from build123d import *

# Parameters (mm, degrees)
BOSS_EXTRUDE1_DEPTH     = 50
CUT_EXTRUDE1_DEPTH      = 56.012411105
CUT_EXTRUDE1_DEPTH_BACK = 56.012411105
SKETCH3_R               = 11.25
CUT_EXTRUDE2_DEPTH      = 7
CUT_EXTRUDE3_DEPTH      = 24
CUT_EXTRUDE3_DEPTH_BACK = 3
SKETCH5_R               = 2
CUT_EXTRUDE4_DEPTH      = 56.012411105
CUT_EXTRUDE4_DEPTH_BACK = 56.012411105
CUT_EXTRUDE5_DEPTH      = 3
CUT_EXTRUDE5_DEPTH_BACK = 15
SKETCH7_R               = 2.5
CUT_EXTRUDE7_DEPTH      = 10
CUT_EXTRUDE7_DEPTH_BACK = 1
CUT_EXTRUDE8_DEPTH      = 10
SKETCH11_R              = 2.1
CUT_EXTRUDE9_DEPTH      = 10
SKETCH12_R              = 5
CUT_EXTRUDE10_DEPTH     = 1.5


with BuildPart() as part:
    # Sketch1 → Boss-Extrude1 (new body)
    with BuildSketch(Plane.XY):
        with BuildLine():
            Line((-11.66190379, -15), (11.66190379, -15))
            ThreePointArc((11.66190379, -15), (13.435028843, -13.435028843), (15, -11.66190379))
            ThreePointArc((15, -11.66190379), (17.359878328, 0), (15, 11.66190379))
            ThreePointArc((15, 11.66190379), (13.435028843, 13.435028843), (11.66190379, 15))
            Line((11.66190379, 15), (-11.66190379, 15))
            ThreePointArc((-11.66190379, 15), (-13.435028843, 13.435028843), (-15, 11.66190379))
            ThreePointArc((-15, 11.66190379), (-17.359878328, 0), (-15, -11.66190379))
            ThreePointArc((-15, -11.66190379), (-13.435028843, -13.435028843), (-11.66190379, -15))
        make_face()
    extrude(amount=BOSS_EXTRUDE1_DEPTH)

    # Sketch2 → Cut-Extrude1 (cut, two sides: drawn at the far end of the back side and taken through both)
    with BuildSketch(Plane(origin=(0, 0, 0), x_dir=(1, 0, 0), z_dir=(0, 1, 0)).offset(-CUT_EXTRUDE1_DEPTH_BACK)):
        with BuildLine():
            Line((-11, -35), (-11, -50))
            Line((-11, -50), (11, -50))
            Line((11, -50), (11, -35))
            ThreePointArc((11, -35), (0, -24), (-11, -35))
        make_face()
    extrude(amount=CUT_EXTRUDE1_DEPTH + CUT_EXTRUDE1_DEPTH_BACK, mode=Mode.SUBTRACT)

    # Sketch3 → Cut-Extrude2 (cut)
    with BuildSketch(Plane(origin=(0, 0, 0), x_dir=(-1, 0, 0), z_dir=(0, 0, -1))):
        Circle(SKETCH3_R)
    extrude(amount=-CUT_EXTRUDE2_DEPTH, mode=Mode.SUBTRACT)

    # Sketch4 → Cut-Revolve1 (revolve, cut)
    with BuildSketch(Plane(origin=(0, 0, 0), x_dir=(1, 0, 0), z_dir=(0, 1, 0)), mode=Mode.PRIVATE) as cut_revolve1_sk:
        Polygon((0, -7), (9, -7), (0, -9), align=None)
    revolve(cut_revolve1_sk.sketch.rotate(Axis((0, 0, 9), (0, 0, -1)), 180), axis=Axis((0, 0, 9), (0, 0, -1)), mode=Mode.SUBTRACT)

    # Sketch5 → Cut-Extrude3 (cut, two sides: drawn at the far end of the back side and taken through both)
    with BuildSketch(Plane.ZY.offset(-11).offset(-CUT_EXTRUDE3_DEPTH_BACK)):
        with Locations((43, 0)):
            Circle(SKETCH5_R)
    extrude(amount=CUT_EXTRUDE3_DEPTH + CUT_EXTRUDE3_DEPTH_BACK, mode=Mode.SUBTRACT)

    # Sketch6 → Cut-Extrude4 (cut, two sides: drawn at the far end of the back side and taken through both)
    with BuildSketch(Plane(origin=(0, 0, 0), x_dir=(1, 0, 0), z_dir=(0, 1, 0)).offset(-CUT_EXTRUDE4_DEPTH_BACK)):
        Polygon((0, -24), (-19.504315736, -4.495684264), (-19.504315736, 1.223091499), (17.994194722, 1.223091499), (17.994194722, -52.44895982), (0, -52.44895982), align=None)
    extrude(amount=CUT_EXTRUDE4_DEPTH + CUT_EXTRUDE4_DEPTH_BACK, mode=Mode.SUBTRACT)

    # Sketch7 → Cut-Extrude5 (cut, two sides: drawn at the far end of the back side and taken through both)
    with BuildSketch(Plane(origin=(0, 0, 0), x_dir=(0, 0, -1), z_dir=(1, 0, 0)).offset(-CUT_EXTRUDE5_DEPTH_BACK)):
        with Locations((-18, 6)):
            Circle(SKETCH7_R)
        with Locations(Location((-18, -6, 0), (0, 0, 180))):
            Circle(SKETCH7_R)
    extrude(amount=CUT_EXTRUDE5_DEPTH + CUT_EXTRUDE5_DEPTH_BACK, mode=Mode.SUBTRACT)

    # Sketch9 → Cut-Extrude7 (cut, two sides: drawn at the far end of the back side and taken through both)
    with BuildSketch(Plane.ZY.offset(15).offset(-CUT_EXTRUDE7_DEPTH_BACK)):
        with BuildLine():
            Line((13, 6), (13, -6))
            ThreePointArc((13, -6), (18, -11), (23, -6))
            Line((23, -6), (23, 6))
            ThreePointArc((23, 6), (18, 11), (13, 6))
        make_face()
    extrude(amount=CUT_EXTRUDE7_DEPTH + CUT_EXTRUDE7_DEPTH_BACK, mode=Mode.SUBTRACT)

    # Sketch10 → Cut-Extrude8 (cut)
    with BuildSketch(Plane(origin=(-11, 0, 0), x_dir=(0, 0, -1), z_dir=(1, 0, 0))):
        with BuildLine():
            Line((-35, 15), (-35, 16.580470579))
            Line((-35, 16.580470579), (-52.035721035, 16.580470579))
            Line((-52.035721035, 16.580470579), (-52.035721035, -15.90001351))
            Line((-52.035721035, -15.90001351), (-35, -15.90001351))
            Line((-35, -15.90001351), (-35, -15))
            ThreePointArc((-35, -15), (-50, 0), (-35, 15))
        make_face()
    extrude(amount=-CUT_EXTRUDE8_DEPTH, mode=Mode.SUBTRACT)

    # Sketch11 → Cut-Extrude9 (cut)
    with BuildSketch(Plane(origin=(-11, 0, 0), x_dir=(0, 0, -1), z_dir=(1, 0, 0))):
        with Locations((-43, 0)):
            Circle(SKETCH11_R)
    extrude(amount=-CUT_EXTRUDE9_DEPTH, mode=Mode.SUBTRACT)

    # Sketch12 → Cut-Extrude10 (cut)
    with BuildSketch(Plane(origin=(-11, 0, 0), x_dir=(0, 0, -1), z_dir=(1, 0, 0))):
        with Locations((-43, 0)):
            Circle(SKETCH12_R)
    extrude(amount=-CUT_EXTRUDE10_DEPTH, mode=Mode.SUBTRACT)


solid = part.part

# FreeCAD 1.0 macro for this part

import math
import FreeCAD as App
import Part
import Sketcher
from FreeCAD import Vector
Q = App.Units.Quantity

doc = App.newDocument("Part")
body = doc.addObject("PartDesign::Body", "Body")

# Sketch on XY plane
sketch1 = doc.addObject("Sketcher::SketchObject", "Sketch")
body.addObject(sketch1)
sketch1.AttachmentSupport = (doc.XY_Plane, [""])
sketch1.MapMode = "FlatFace"
sketch1.addGeometry([
    Part.LineSegment(Vector(-11.7, -15, 0), Vector(11.7, -15, 0)),  # 0
    Part.ArcOfCircle(Part.Circle(Vector(0, 0, 0), Vector(0, 0, 1), 19), math.radians(-52.14), math.radians(-37.86)),  # 1
    Part.ArcOfCircle(Part.Circle(Vector(-12.6, 0, 0), Vector(0, 0, 1), 30), math.radians(-23), math.radians(23)),  # 2
    Part.ArcOfCircle(Part.Circle(Vector(0, 0, 0), Vector(0, 0, 1), 19), math.radians(37.86), math.radians(52.14)),  # 3
    Part.LineSegment(Vector(11.7, 15, 0), Vector(-11.7, 15, 0)),  # 4
    Part.ArcOfCircle(Part.Circle(Vector(0, 0, 0), Vector(0, 0, 1), 19), math.radians(127.86), math.radians(142.14)),  # 5
    Part.ArcOfCircle(Part.Circle(Vector(12.6, 0, 0), Vector(0, 0, 1), 30), math.radians(157), math.radians(203)),  # 6
    Part.ArcOfCircle(Part.Circle(Vector(0, 0, 0), Vector(0, 0, 1), 19), math.radians(-142.14), math.radians(-127.86)),  # 7
], False)
sketch1.addConstraint([
    Sketcher.Constraint("Coincident", 0, 2, 1, 1),
    Sketcher.Constraint("Coincident", 1, 2, 2, 1),
    Sketcher.Constraint("Coincident", 2, 2, 3, 1),
    Sketcher.Constraint("Coincident", 3, 2, 4, 1),
    Sketcher.Constraint("Coincident", 4, 2, 5, 1),
    Sketcher.Constraint("Coincident", 5, 2, 6, 1),
    Sketcher.Constraint("Coincident", 6, 2, 7, 1),
    Sketcher.Constraint("Coincident", 7, 2, 0, 1),
    Sketcher.Constraint("Horizontal", 0),
    Sketcher.Constraint("Horizontal", 4),
    Sketcher.Constraint("Coincident", 1, 3, -1, 1),
    Sketcher.Constraint("Coincident", 3, 3, -1, 1),
    Sketcher.Constraint("Coincident", 5, 3, -1, 1),
    Sketcher.Constraint("Coincident", 7, 3, -1, 1),
    Sketcher.Constraint("Equal", 1, 3),
    Sketcher.Constraint("Equal", 3, 5),
    Sketcher.Constraint("Equal", 2, 6),
    Sketcher.Constraint("Equal", 5, 7),
    Sketcher.Constraint("Symmetric", 2, 3, 6, 3, -1, 1),
    Sketcher.Constraint("PointOnObject", 2, 3, -1),
    Sketcher.Constraint("Vertical", 0, 2, 3, 2),
    Sketcher.Constraint("Radius", 1, 19.0),
    Sketcher.Constraint("DistanceY", 0, 2, -1, 1, 15.0),
    Sketcher.Constraint("DistanceX", -1, 1, 1, 2, 15.0),
    Sketcher.Constraint("Radius", 2, 29.994984),
])
pad1 = doc.addObject("PartDesign::Pad", "Pad")
body.addObject(pad1)
pad1.Profile = sketch1
pad1.Length = 50

# Sketch on XZ plane
sketch2 = doc.addObject("Sketcher::SketchObject", "Sketch001")
body.addObject(sketch2)
sketch2.AttachmentSupport = (doc.XZ_Plane, [""])
sketch2.MapMode = "FlatFace"
sketch2.addGeometry([
    Part.LineSegment(Vector(-11, 35, 0), Vector(-11, 50, 0)),
    Part.LineSegment(Vector(-11, 50, 0), Vector(11, 50, 0)),
    Part.LineSegment(Vector(11, 50, 0), Vector(11, 35, 0)),
    Part.ArcOfCircle(Part.Circle(Vector(0, 35, 0), Vector(0, 0, 1), 11), math.radians(180), math.radians(360)),
], False)
sketch2.addConstraint([
    Sketcher.Constraint("Coincident", 0, 2, 1, 1),
    Sketcher.Constraint("Coincident", 1, 2, 2, 1),
    Sketcher.Constraint("Tangent", 2, 2, 3, 2),
    Sketcher.Constraint("Tangent", 3, 1, 0, 1),
    Sketcher.Constraint("Vertical", 0),
    Sketcher.Constraint("Horizontal", 1),
    Sketcher.Constraint("Vertical", 2),
    Sketcher.Constraint("PointOnObject", 3, 3, -2),
    Sketcher.Constraint("Radius", 3, 11.0),
    Sketcher.Constraint("DistanceY", 0, 1, 0, 2, 15.0),
    Sketcher.Constraint("DistanceY", -1, 1, 3, 3, 35.0),
])
pocket1 = doc.addObject("PartDesign::Pocket", "Pocket")
body.addObject(pocket1)
pocket1.Profile = sketch2
pocket1.Type = "ThroughAll"
pocket1.Midplane = True

# Sketch on XY plane
sketch3 = doc.addObject("Sketcher::SketchObject", "Sketch002")
body.addObject(sketch3)
sketch3.AttachmentSupport = (doc.XY_Plane, [""])
sketch3.MapMode = "FlatFace"
sketch3.addGeometry(Part.Circle(Vector(0, 0, 0), Vector(0, 0, 1), 11), False)
sketch3.addConstraint([
    Sketcher.Constraint("Coincident", 0, 3, -1, 1),
    Sketcher.Constraint("Diameter", 0, 22.5),
])
pocket2 = doc.addObject("PartDesign::Pocket", "Pocket001")
body.addObject(pocket2)
pocket2.Profile = sketch3
pocket2.Length = 7
pocket2.Reversed = True

# Sketch on XZ plane
sketch4 = doc.addObject("Sketcher::SketchObject", "Sketch003")
body.addObject(sketch4)
sketch4.AttachmentSupport = (doc.XZ_Plane, [""])
sketch4.MapMode = "FlatFace"
sketch4.addGeometry([
    Part.LineSegment(Vector(9, 7, 0), Vector(0, 7, 0)),
    Part.LineSegment(Vector(0, 7, 0), Vector(0, 9, 0)),
    Part.LineSegment(Vector(0, 9, 0), Vector(9, 7, 0)),
], False)
sketch4.addConstraint([
    Sketcher.Constraint("Coincident", 0, 2, 1, 1),
    Sketcher.Constraint("Coincident", 1, 2, 2, 1),
    Sketcher.Constraint("Coincident", 2, 2, 0, 1),
    Sketcher.Constraint("Horizontal", 0),
    Sketcher.Constraint("Vertical", 1),
    Sketcher.Constraint("PointOnObject", 0, 2, -2),
    Sketcher.Constraint("DistanceX", 0, 2, 0, 1, 9.0),
    Sketcher.Constraint("DistanceY", 1, 1, 1, 2, 2.0),
    Sketcher.Constraint("DistanceY", -1, 1, 0, 2, 7.0),
])
groove = doc.addObject("PartDesign::Groove", "Groove")
body.addObject(groove)
groove.Profile = sketch4
groove.ReferenceAxis = (sketch4, ["V_Axis"])
groove.Angle = 360

# Sketch on YZ plane
sketch5 = doc.addObject("Sketcher::SketchObject", "Sketch004")
body.addObject(sketch5)
sketch5.AttachmentSupport = (doc.YZ_Plane, [""])
sketch5.MapMode = "FlatFace"
sketch5.AttachmentOffset = App.Placement(Vector(0, 0, 11), App.Rotation())
sketch5.addGeometry(Part.Circle(Vector(0, 43, 0), Vector(0, 0, 1), 2), False)
sketch5.addConstraint([
    Sketcher.Constraint("PointOnObject", 0, 3, -2),
    Sketcher.Constraint("Diameter", 0, 4.0),
    Sketcher.Constraint("DistanceY", -1, 1, 0, 3, 43.0),
])
pocket3 = doc.addObject("PartDesign::Pocket", "Pocket002")
body.addObject(pocket3)
pocket3.Profile = sketch5
pocket3.Type = "TwoLengths"
pocket3.Length = 24
pocket3.Length2 = 3

# Sketch on XZ plane
sketch6 = doc.addObject("Sketcher::SketchObject", "Sketch005")
body.addObject(sketch6)
sketch6.AttachmentSupport = (doc.XZ_Plane, [""])
sketch6.MapMode = "FlatFace"
sketch6.addGeometry([
    Part.LineSegment(Vector(-20, 4, 0), Vector(0, 24, 0)),  # 0
    Part.LineSegment(Vector(0, 24, 0), Vector(0, 52, 0)),  # 1
    Part.LineSegment(Vector(0, 52, 0), Vector(18, 52, 0)),  # 2
    Part.LineSegment(Vector(18, 52, 0), Vector(18, -1, 0)),  # 3
    Part.LineSegment(Vector(18, -1, 0), Vector(-20, -1, 0)),  # 4
    Part.LineSegment(Vector(-20, -1, 0), Vector(-20, 4, 0)),  # 5
], False)
sketch6.addConstraint([
    Sketcher.Constraint("Coincident", 0, 2, 1, 1),
    Sketcher.Constraint("Coincident", 1, 2, 2, 1),
    Sketcher.Constraint("Coincident", 2, 2, 3, 1),
    Sketcher.Constraint("Coincident", 3, 2, 4, 1),
    Sketcher.Constraint("Coincident", 4, 2, 5, 1),
    Sketcher.Constraint("Coincident", 5, 2, 0, 1),
    Sketcher.Constraint("Vertical", 1),
    Sketcher.Constraint("Horizontal", 2),
    Sketcher.Constraint("Vertical", 3),
    Sketcher.Constraint("Horizontal", 4),
    Sketcher.Constraint("Vertical", 5),
    Sketcher.Constraint("PointOnObject", 0, 2, -2),
    Sketcher.Constraint("Angle", 0, Q("45 deg")),
    Sketcher.Constraint("DistanceY", -1, 1, 0, 2, 24.0),
    Sketcher.Constraint("DistanceX", 4, 2, 4, 1, 37.49851),
    Sketcher.Constraint("DistanceY", 1, 1, 1, 2, 28.44896),
    Sketcher.Constraint("DistanceY", 3, 2, 3, 1, 53.672051),
    Sketcher.Constraint("DistanceX", 2, 1, 2, 2, 17.994195),
])
pocket4 = doc.addObject("PartDesign::Pocket", "Pocket003")
body.addObject(pocket4)
pocket4.Profile = sketch6
pocket4.Type = "ThroughAll"
pocket4.Midplane = True

# Sketch on YZ plane
sketch7 = doc.addObject("Sketcher::SketchObject", "Sketch006")
body.addObject(sketch7)
sketch7.AttachmentSupport = (doc.YZ_Plane, [""])
sketch7.MapMode = "FlatFace"
sketch7.addGeometry([
    Part.Circle(Vector(6, 18, 0), Vector(0, 0, 1), 2.5),
    Part.Circle(Vector(-6, 18, 0), Vector(0, 0, 1), 2.5),
], False)
sketch7.addConstraint([
    Sketcher.Constraint("Equal", 0, 1),
    Sketcher.Constraint("Symmetric", 0, 3, 1, 3, -2),
    Sketcher.Constraint("Diameter", 0, 5.0),
    Sketcher.Constraint("DistanceX", -1, 1, 0, 3, 6.0),
    Sketcher.Constraint("DistanceY", -1, 1, 0, 3, 18.0),
])
pocket5 = doc.addObject("PartDesign::Pocket", "Pocket004")
body.addObject(pocket5)
pocket5.Profile = sketch7
pocket5.Type = "TwoLengths"
pocket5.Length = 3
pocket5.Length2 = 15
pocket5.Reversed = True

# Sketch on YZ plane
sketch8 = doc.addObject("Sketcher::SketchObject", "Sketch007")
body.addObject(sketch8)
sketch8.AttachmentSupport = (doc.YZ_Plane, [""])
sketch8.MapMode = "FlatFace"
sketch8.AttachmentOffset = App.Placement(Vector(0, 0, -15), App.Rotation())
sketch8.addGeometry([
    Part.LineSegment(Vector(6, 13, 0), Vector(-6, 13, 0)),
    Part.ArcOfCircle(Part.Circle(Vector(-6, 18, 0), Vector(0, 0, 1), 5), math.radians(90), math.radians(270)),
    Part.LineSegment(Vector(-6, 23, 0), Vector(6, 23, 0)),
    Part.ArcOfCircle(Part.Circle(Vector(6, 18, 0), Vector(0, 0, 1), 5), math.radians(-90), math.radians(90)),
], False)
sketch8.addConstraint([
    Sketcher.Constraint("Tangent", 0, 2, 1, 2),
    Sketcher.Constraint("Tangent", 1, 1, 2, 1),
    Sketcher.Constraint("Tangent", 2, 2, 3, 2),
    Sketcher.Constraint("Tangent", 3, 1, 0, 1),
    Sketcher.Constraint("Horizontal", 0),
    Sketcher.Constraint("Horizontal", 2),
    Sketcher.Constraint("Radius", 1, 5.0),
    Sketcher.Constraint("DistanceX", 0, 2, 0, 1, 12.0),
    Sketcher.Constraint("DistanceX", 1, 3, -1, 1, 6.0),
    Sketcher.Constraint("DistanceY", -1, 1, 1, 3, 18.0),
])
pocket6 = doc.addObject("PartDesign::Pocket", "Pocket005")
body.addObject(pocket6)
pocket6.Profile = sketch8
pocket6.Type = "TwoLengths"
pocket6.Length = 10
pocket6.Length2 = 1

# Sketch on YZ plane
sketch9 = doc.addObject("Sketcher::SketchObject", "Sketch008")
body.addObject(sketch9)
sketch9.AttachmentSupport = (doc.YZ_Plane, [""])
sketch9.MapMode = "FlatFace"
sketch9.AttachmentOffset = App.Placement(Vector(0, 0, -11), App.Rotation())
sketch9.addGeometry([
    Part.LineSegment(Vector(15, 35, 0), Vector(16.6, 35, 0)),  # 0
    Part.LineSegment(Vector(16.6, 35, 0), Vector(16.6, 52, 0)),  # 1
    Part.LineSegment(Vector(16.6, 52, 0), Vector(-15.9, 52, 0)),  # 2
    Part.LineSegment(Vector(-15.9, 52, 0), Vector(-15.9, 35, 0)),  # 3
    Part.LineSegment(Vector(-15.9, 35, 0), Vector(-15, 35, 0)),  # 4
    Part.ArcOfCircle(Part.Circle(Vector(0, 35, 0), Vector(0, 0, 1), 15), math.radians(0), math.radians(180)),  # 5
], False)
sketch9.addConstraint([
    Sketcher.Constraint("Coincident", 0, 2, 1, 1),
    Sketcher.Constraint("Coincident", 1, 2, 2, 1),
    Sketcher.Constraint("Coincident", 2, 2, 3, 1),
    Sketcher.Constraint("Coincident", 3, 2, 4, 1),
    Sketcher.Constraint("Coincident", 4, 2, 5, 2),
    Sketcher.Constraint("Coincident", 5, 1, 0, 1),
    Sketcher.Constraint("Horizontal", 0),
    Sketcher.Constraint("Vertical", 1),
    Sketcher.Constraint("Horizontal", 2),
    Sketcher.Constraint("Vertical", 3),
    Sketcher.Constraint("Horizontal", 4),
    Sketcher.Constraint("Symmetric", 4, 2, 5, 1, -2),
    Sketcher.Constraint("Horizontal", 5, 3, 0, 2),
    Sketcher.Constraint("Radius", 5, 15.0),
    Sketcher.Constraint("DistanceY", -1, 1, 5, 3, 35.0),
    Sketcher.Constraint("DistanceX", 0, 1, 0, 2, 1.580471),
    Sketcher.Constraint("DistanceY", 1, 1, 1, 2, 17.035721),
    Sketcher.Constraint("DistanceX", 2, 2, 2, 1, 32.480484),
])
pocket7 = doc.addObject("PartDesign::Pocket", "Pocket006")
body.addObject(pocket7)
pocket7.Profile = sketch9
pocket7.Length = 10

# Sketch on YZ plane
sketch10 = doc.addObject("Sketcher::SketchObject", "Sketch009")
body.addObject(sketch10)
sketch10.AttachmentSupport = (doc.YZ_Plane, [""])
sketch10.MapMode = "FlatFace"
sketch10.AttachmentOffset = App.Placement(Vector(0, 0, -11), App.Rotation())
sketch10.addGeometry(Part.Circle(Vector(0, 43, 0), Vector(0, 0, 1), 2.1), False)
sketch10.addConstraint([
    Sketcher.Constraint("PointOnObject", 0, 3, -2),
    Sketcher.Constraint("Diameter", 0, 4.2),
    Sketcher.Constraint("DistanceY", -1, 1, 0, 3, 43.0),
])
pocket8 = doc.addObject("PartDesign::Pocket", "Pocket007")
body.addObject(pocket8)
pocket8.Profile = sketch10
pocket8.Length = 10

# Sketch on YZ plane
sketch11 = doc.addObject("Sketcher::SketchObject", "Sketch010")
body.addObject(sketch11)
sketch11.AttachmentSupport = (doc.YZ_Plane, [""])
sketch11.MapMode = "FlatFace"
sketch11.AttachmentOffset = App.Placement(Vector(0, 0, -11), App.Rotation())
sketch11.addGeometry(Part.Circle(Vector(0, 43, 0), Vector(0, 0, 1), 5), False)
sketch11.addConstraint([
    Sketcher.Constraint("PointOnObject", 0, 3, -2),
    Sketcher.Constraint("Diameter", 0, 10.0),
    Sketcher.Constraint("DistanceY", -1, 1, 0, 3, 43.0),
])
pocket9 = doc.addObject("PartDesign::Pocket", "Pocket008")
body.addObject(pocket9)
pocket9.Profile = sketch11
pocket9.Length = 1.5

doc.recompute()
